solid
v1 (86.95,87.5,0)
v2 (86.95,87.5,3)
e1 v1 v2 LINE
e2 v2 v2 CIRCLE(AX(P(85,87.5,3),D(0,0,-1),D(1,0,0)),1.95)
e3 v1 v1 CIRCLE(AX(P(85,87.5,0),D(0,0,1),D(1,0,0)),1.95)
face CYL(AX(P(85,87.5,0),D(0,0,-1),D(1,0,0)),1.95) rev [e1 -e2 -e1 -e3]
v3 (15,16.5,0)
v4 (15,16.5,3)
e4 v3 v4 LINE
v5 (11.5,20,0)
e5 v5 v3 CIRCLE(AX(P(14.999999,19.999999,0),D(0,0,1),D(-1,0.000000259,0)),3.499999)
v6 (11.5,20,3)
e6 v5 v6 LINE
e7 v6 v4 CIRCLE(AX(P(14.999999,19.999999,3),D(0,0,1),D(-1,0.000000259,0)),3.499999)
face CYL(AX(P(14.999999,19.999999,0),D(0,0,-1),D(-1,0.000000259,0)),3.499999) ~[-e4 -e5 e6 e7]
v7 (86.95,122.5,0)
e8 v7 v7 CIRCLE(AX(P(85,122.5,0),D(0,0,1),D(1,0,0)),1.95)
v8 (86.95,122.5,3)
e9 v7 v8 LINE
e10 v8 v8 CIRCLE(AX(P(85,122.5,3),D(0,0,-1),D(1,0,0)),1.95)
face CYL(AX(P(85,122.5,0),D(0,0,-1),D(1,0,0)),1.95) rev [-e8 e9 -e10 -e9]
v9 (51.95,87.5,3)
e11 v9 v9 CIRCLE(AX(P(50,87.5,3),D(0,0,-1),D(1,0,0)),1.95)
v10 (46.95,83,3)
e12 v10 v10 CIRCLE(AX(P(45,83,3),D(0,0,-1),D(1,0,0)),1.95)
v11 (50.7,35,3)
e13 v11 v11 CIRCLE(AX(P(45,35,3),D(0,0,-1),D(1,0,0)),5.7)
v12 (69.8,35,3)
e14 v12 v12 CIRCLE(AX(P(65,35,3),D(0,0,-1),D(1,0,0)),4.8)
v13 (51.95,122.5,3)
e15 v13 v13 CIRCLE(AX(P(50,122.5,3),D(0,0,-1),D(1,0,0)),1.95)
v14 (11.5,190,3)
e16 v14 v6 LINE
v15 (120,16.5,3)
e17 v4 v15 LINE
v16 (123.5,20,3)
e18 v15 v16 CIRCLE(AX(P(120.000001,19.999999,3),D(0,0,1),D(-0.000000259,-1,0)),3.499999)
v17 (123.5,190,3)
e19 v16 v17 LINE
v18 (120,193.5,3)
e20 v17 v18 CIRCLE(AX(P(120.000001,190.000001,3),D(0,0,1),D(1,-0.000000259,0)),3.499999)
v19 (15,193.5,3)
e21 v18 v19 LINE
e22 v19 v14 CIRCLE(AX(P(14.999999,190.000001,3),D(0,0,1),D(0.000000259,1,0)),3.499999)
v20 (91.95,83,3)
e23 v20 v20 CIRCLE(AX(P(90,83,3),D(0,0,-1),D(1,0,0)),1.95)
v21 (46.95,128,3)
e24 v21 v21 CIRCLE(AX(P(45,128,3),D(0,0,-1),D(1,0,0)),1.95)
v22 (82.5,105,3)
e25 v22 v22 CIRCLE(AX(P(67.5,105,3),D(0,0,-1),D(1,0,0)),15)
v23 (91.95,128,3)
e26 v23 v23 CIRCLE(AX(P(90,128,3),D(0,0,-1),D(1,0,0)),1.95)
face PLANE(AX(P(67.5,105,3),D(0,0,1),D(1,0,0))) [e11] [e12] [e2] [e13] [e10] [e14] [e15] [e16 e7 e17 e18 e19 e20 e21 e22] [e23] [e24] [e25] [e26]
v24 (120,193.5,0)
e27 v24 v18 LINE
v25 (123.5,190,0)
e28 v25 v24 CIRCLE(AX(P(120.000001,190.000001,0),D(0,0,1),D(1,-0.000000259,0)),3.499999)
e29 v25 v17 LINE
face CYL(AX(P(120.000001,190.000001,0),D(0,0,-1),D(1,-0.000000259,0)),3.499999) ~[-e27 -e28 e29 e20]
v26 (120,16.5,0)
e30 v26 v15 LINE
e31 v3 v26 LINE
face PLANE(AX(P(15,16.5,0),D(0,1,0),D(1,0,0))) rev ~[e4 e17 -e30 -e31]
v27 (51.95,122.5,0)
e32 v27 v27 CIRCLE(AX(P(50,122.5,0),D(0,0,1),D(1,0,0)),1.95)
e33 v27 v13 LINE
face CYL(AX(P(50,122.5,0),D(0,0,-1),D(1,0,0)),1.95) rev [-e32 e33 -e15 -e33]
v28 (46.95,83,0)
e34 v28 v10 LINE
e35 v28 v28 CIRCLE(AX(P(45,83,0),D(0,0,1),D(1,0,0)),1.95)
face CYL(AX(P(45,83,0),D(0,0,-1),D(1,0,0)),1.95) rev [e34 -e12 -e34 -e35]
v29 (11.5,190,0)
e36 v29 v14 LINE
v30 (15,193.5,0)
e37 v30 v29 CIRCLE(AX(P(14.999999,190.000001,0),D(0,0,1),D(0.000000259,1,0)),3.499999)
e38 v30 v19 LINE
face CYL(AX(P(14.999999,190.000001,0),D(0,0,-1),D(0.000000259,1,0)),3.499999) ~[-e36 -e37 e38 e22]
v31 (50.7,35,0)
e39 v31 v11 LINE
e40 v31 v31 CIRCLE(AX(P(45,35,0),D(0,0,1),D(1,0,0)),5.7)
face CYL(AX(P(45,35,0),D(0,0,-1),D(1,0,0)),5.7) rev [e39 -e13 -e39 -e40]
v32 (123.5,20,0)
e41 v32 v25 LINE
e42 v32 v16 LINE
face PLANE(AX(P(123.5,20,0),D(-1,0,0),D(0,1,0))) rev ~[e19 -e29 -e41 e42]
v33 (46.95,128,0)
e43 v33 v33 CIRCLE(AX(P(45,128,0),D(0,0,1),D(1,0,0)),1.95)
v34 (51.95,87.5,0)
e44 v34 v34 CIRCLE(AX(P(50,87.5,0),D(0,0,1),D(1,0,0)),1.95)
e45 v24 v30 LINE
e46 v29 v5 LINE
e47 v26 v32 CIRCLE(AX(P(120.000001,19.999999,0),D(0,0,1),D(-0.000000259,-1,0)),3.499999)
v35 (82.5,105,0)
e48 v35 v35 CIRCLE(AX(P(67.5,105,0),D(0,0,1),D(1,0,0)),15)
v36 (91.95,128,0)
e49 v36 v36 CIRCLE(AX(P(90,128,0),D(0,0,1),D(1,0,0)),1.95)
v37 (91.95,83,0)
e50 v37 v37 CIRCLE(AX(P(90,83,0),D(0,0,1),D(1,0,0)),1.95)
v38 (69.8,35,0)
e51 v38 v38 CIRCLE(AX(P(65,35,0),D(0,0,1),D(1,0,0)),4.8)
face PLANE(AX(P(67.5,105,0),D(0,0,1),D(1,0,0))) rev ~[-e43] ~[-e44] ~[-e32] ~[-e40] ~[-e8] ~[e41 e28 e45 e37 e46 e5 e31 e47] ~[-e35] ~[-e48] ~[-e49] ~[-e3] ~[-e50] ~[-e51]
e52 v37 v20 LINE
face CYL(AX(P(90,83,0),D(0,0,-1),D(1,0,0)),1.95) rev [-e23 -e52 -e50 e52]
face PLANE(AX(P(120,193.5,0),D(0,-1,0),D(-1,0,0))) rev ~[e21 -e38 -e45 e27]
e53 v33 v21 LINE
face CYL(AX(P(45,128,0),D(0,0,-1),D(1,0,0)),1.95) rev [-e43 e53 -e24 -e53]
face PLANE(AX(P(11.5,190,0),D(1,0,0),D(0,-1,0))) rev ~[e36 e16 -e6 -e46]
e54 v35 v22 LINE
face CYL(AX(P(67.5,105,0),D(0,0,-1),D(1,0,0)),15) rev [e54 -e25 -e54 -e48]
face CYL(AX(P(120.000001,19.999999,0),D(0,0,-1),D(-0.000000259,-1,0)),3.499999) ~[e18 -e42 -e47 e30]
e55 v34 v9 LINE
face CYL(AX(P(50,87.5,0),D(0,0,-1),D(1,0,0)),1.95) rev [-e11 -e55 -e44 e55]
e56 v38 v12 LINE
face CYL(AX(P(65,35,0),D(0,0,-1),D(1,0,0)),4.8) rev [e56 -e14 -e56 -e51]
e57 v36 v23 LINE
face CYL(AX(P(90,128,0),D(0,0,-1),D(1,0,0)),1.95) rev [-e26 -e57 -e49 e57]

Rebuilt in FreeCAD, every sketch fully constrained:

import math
import FreeCAD as App
import Part
import Sketcher
from FreeCAD import Vector

doc = App.newDocument("Part")
params = doc.addObject("Spreadsheet::Sheet", "Params")
for row, (alias, value) in enumerate([
    ("sketch1_radius", "3.499999 mm"),
    ("sketch1_width", "105 mm"),
    ("sketch1_height", "170 mm"),
    ("pad1_length", "3 mm"),
    ("sketch2_diameter", "3.9 mm"),
    ("sketch3_diameter", "30 mm"),
    ("sketch4_diameter", "3.9 mm"),
    ("sketch5_diameter", "11.4 mm"),
    ("sketch5_diameter2", "9.6 mm"),
], start=1):
    params.set(f"A{row}", alias)
    params.set(f"B{row}", "=" + value)
    params.setAlias(f"B{row}", alias)

body = doc.addObject("PartDesign::Body", "Body")

sketch1 = body.newObject("Sketcher::SketchObject", "Sketch")
sketch1.AttachmentSupport = (doc.getObject("XY_Plane"), [""])
sketch1.MapMode = "FlatFace"
sketch1.addGeometry([
    Part.LineSegment(Vector(11.5, 190, 0), Vector(11.5, 20, 0)),
    Part.ArcOfCircle(Part.Circle(Vector(15, 20, 0), Vector(0, 0, 1), 3.5), math.radians(180), math.radians(270)),
    Part.LineSegment(Vector(15, 16.5, 0), Vector(120, 16.5, 0)),
    Part.ArcOfCircle(Part.Circle(Vector(120, 20, 0), Vector(0, 0, 1), 3.5), math.radians(-90), math.radians(0)),
    Part.LineSegment(Vector(123.5, 20, 0), Vector(123.5, 190, 0)),
    Part.ArcOfCircle(Part.Circle(Vector(120, 190, 0), Vector(0, 0, 1), 3.5), math.radians(0), math.radians(90)),
    Part.LineSegment(Vector(120, 193.5, 0), Vector(15, 193.5, 0)),
    Part.ArcOfCircle(Part.Circle(Vector(15, 190, 0), Vector(0, 0, 1), 3.5), math.radians(90), math.radians(180)),
], False)
sketch1.addConstraint([
    Sketcher.Constraint("Tangent", 0, 2, 1, 1),
    Sketcher.Constraint("Tangent", 1, 2, 2, 1),
    Sketcher.Constraint("Tangent", 2, 2, 3, 1),
    Sketcher.Constraint("Tangent", 3, 2, 4, 1),
    Sketcher.Constraint("Tangent", 4, 2, 5, 1),
    Sketcher.Constraint("Tangent", 5, 2, 6, 1),
    Sketcher.Constraint("Tangent", 6, 2, 7, 1),
    Sketcher.Constraint("Tangent", 7, 2, 0, 1),
    Sketcher.Constraint("Vertical", 0),
    Sketcher.Constraint("Horizontal", 2),
    Sketcher.Constraint("Vertical", 4),
    Sketcher.Constraint("Horizontal", 6),
    Sketcher.Constraint("Equal", 1, 3),
    Sketcher.Constraint("Equal", 3, 5),
    Sketcher.Constraint("Equal", 5, 7),
    Sketcher.Constraint("Radius", 1, 3.499999),
    Sketcher.Constraint("DistanceX", 2, 1, 2, 2, 105.0),
    Sketcher.Constraint("DistanceY", 0, 2, 0, 1, 170.0),
    Sketcher.Constraint("DistanceX", -1, 1, 1, 3, 14.999999),
    Sketcher.Constraint("DistanceY", -1, 1, 1, 3, 19.999999),
])
sketch1.setExpression("Constraints[15]", "Params.sketch1_radius")
sketch1.setExpression("Constraints[16]", "Params.sketch1_width")
sketch1.setExpression("Constraints[17]", "Params.sketch1_height")
pad1 = body.newObject("PartDesign::Pad", "Pad")
pad1.Profile = sketch1
pad1.setExpression("Length", "Params.pad1_length")

sketch2 = body.newObject("Sketcher::SketchObject", "Sketch001")
sketch2.AttachmentSupport = (doc.getObject("XY_Plane"), [""])
sketch2.MapMode = "FlatFace"
sketch2.addGeometry([
    Part.Circle(Vector(50, 87.5, 0), Vector(0, 0, 1), 1.9),
    Part.Circle(Vector(85, 87.5, 0), Vector(0, 0, 1), 1.9),
    Part.Circle(Vector(85, 122.5, 0), Vector(0, 0, 1), 1.9),
    Part.Circle(Vector(50, 122.5, 0), Vector(0, 0, 1), 1.9),
], False)
sketch2.addConstraint([
    Sketcher.Constraint("Equal", 0, 1),
    Sketcher.Constraint("Equal", 1, 2),
    Sketcher.Constraint("Equal", 2, 3),
    Sketcher.Constraint("Horizontal", 0, 3, 1, 3),
    Sketcher.Constraint("Horizontal", 2, 3, 3, 3),
    Sketcher.Constraint("Vertical", 1, 3, 2, 3),
    Sketcher.Constraint("Vertical", 0, 3, 3, 3),
    Sketcher.Constraint("Diameter", 0, 3.9),
    Sketcher.Constraint("DistanceX", -1, 1, 0, 3, 50.0),
    Sketcher.Constraint("DistanceX", -1, 1, 1, 3, 85.0),
    Sketcher.Constraint("DistanceY", 1, 3, 2, 3, 35.0),
    Sketcher.Constraint("DistanceY", -1, 1, 0, 3, 87.5),
])
sketch2.setExpression("Constraints[7]", "Params.sketch2_diameter")
pocket1 = body.newObject("PartDesign::Pocket", "Pocket")
pocket1.Profile = sketch2
pocket1.Type = "ThroughAll"
pocket1.Reversed = True

sketch3 = body.newObject("Sketcher::SketchObject", "Sketch002")
sketch3.AttachmentSupport = (doc.getObject("XY_Plane"), [""])
sketch3.MapMode = "FlatFace"
sketch3.addGeometry(Part.Circle(Vector(68, 105, 0), Vector(0, 0, 1), 15), False)
sketch3.addConstraint([
    Sketcher.Constraint("Diameter", 0, 30.0),
    Sketcher.Constraint("DistanceY", -1, 1, 0, 3, 105.0),
    Sketcher.Constraint("DistanceX", -1, 1, 0, 3, 67.5),
])
sketch3.setExpression("Constraints[0]", "Params.sketch3_diameter")
pocket2 = body.newObject("PartDesign::Pocket", "Pocket001")
pocket2.Profile = sketch3
pocket2.Type = "ThroughAll"
pocket2.Reversed = True

sketch4 = body.newObject("Sketcher::SketchObject", "Sketch003")
sketch4.AttachmentSupport = (doc.getObject("XY_Plane"), [""])
sketch4.MapMode = "FlatFace"
sketch4.addGeometry([
    Part.Circle(Vector(90, 83, 0), Vector(0, 0, 1), 1.9),
    Part.Circle(Vector(45, 83, 0), Vector(0, 0, 1), 1.9),
    Part.Circle(Vector(45, 128, 0), Vector(0, 0, 1), 1.9),
    Part.Circle(Vector(90, 128, 0), Vector(0, 0, 1), 1.9),
], False)
sketch4.addConstraint([
    Sketcher.Constraint("Equal", 0, 1),
    Sketcher.Constraint("Equal", 1, 2),
    Sketcher.Constraint("Equal", 2, 3),
    Sketcher.Constraint("Horizontal", 0, 3, 1, 3),
    Sketcher.Constraint("Horizontal", 2, 3, 3, 3),
    Sketcher.Constraint("Vertical", 1, 3, 2, 3),
    Sketcher.Constraint("Vertical", 0, 3, 3, 3),
    Sketcher.Constraint("Diameter", 0, 3.9),
    Sketcher.Constraint("DistanceX", -1, 1, 0, 3, 90.0),
    Sketcher.Constraint("DistanceY", -1, 1, 0, 3, 83.0),
    Sketcher.Constraint("DistanceX", -1, 1, 1, 3, 45.0),
    Sketcher.Constraint("DistanceY", -1, 1, 2, 3, 128.0),
])
sketch4.setExpression("Constraints[7]", "Params.sketch4_diameter")
pocket3 = body.newObject("PartDesign::Pocket", "Pocket002")
pocket3.Profile = sketch4
pocket3.Type = "ThroughAll"
pocket3.Reversed = True

sketch5 = body.newObject("Sketcher::SketchObject", "Sketch004")
sketch5.AttachmentSupport = (doc.getObject("XY_Plane"), [""])
sketch5.MapMode = "FlatFace"
sketch5.addGeometry([
    Part.Circle(Vector(45, 35, 0), Vector(0, 0, 1), 5.7),
    Part.Circle(Vector(65, 35, 0), Vector(0, 0, 1), 4.8),
], False)
sketch5.addConstraint([
    Sketcher.Constraint("Horizontal", 0, 3, 1, 3),
    Sketcher.Constraint("Diameter", 0, 11.4),
    Sketcher.Constraint("Diameter", 1, 9.6),
    Sketcher.Constraint("DistanceX", -1, 1, 0, 3, 45.0),
    Sketcher.Constraint("DistanceY", -1, 1, 0, 3, 35.0),
    Sketcher.Constraint("DistanceX", -1, 1, 1, 3, 65.0),
])
sketch5.setExpression("Constraints[1]", "Params.sketch5_diameter")
sketch5.setExpression("Constraints[2]", "Params.sketch5_diameter2")
pocket4 = body.newObject("PartDesign::Pocket", "Pocket003")
pocket4.Profile = sketch5
pocket4.Type = "ThroughAll"
pocket4.Reversed = True

doc.recompute()
